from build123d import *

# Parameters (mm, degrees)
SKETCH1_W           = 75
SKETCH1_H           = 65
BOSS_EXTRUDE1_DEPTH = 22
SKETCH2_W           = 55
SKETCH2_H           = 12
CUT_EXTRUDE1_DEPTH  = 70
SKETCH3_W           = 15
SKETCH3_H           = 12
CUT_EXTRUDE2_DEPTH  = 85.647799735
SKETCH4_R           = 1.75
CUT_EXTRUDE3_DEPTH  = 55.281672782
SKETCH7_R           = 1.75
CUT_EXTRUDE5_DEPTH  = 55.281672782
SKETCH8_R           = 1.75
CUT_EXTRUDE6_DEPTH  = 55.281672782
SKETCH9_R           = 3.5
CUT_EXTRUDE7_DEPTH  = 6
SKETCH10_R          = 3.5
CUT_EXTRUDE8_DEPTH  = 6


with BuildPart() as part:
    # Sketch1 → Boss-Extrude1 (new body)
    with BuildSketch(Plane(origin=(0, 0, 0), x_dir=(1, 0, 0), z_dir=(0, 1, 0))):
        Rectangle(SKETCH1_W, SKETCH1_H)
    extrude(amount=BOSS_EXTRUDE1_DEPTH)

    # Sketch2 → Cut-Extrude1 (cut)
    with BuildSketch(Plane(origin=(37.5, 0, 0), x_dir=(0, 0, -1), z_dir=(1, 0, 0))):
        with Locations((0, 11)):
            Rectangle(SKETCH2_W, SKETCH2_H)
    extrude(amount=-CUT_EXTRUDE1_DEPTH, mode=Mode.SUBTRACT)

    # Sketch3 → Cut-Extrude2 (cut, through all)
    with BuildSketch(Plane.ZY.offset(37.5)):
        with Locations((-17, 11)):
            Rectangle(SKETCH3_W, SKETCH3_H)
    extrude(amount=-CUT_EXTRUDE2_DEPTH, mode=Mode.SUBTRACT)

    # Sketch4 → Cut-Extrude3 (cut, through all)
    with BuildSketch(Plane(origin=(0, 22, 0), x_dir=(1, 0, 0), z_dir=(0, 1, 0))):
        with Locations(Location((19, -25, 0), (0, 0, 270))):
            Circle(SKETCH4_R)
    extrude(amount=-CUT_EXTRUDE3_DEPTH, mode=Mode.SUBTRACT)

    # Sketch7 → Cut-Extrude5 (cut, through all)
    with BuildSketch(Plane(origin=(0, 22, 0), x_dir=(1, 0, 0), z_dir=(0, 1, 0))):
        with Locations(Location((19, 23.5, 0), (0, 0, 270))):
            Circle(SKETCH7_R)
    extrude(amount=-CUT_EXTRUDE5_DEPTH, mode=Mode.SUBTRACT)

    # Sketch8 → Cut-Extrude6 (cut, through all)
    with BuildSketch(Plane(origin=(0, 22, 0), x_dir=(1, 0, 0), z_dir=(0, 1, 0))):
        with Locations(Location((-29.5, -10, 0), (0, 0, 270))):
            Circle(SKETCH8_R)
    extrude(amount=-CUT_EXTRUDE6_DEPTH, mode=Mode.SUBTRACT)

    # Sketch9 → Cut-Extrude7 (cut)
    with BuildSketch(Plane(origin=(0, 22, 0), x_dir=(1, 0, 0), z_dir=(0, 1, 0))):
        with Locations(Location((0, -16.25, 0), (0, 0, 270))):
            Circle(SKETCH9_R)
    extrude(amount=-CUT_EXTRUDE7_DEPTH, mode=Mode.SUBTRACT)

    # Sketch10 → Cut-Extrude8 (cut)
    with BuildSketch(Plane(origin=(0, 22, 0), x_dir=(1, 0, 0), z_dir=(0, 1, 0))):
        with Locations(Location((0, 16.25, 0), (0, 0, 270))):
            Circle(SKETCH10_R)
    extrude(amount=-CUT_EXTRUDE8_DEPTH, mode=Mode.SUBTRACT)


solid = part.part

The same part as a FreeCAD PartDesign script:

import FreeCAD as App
import Part
import Sketcher
Q = App.Units.Quantity

doc = App.newDocument("Part")
body = doc.addObject("PartDesign::Body", "Body")

# Sketch on XZ plane
sketch1 = body.newObject("Sketcher::SketchObject", "Sketch")
sketch1.AttachmentSupport = (doc.getObject("XZ_Plane"), [""])
sketch1.MapMode = "FlatFace"
sketch1.addGeometry([
    Part.LineSegment(App.Vector(-38, -32, 0), App.Vector(-38, 32, 0)),
    Part.LineSegment(App.Vector(-38, 32, 0), App.Vector(38, 32, 0)),
    Part.LineSegment(App.Vector(38, 32, 0), App.Vector(38, -32, 0)),
    Part.LineSegment(App.Vector(38, -32, 0), App.Vector(-38, -32, 0)),
], False)
sketch1.addConstraint([
    Sketcher.Constraint("Coincident", 0, 2, 1, 1),
    Sketcher.Constraint("Coincident", 1, 2, 2, 1),
    Sketcher.Constraint("Coincident", 2, 2, 3, 1),
    Sketcher.Constraint("Coincident", 3, 2, 0, 1),
    Sketcher.Constraint("Vertical", 0),
    Sketcher.Constraint("Horizontal", 1),
    Sketcher.Constraint("Vertical", 2),
    Sketcher.Constraint("Horizontal", 3),
    Sketcher.Constraint("Symmetric", 0, 2, 2, 2, -1, 1),
    Sketcher.Constraint("DistanceX", 1, 1, 1, 2, Q("75 mm")),
    Sketcher.Constraint("DistanceY", 0, 1, 0, 2, Q("65 mm")),
])
pad1 = body.newObject("PartDesign::Pad", "Pad")
pad1.Profile = sketch1
pad1.Length = 22
pad1.Reversed = True

# Sketch on YZ plane
sketch2 = body.newObject("Sketcher::SketchObject", "Sketch001")
sketch2.AttachmentSupport = (doc.getObject("YZ_Plane"), [""])
sketch2.MapMode = "FlatFace"
sketch2.AttachmentOffset = App.Placement(App.Vector(0, 0, 37.5), App.Rotation())
sketch2.addGeometry([
    Part.LineSegment(App.Vector(17, 28, 0), App.Vector(5, 28, 0)),
    Part.LineSegment(App.Vector(5, 28, 0), App.Vector(5, -28, 0)),
    Part.LineSegment(App.Vector(5, -28, 0), App.Vector(17, -28, 0)),
    Part.LineSegment(App.Vector(17, -28, 0), App.Vector(17, 28, 0)),
], False)
sketch2.addConstraint([
    Sketcher.Constraint("Coincident", 0, 2, 1, 1),
    Sketcher.Constraint("Coincident", 1, 2, 2, 1),
    Sketcher.Constraint("Coincident", 2, 2, 3, 1),
    Sketcher.Constraint("Coincident", 3, 2, 0, 1),
    Sketcher.Constraint("Horizontal", 0),
    Sketcher.Constraint("Vertical", 1),
    Sketcher.Constraint("Horizontal", 2),
    Sketcher.Constraint("Vertical", 3),
    Sketcher.Constraint("DistanceX", 0, 2, 0, 1, Q("12 mm")),
    Sketcher.Constraint("DistanceY", 1, 2, 1, 1, Q("55 mm")),
    Sketcher.Constraint("DistanceX", -1, 1, 0, 2, Q("5 mm")),
    Sketcher.Constraint("DistanceY", -1, 1, 0, 2, Q("27.5 mm")),
])
pocket1 = body.newObject("PartDesign::Pocket", "Pocket")
pocket1.Profile = sketch2
pocket1.Length = 70

# Sketch on YZ plane
sketch3 = body.newObject("Sketcher::SketchObject", "Sketch002")
sketch3.AttachmentSupport = (doc.getObject("YZ_Plane"), [""])
sketch3.MapMode = "FlatFace"
sketch3.AttachmentOffset = App.Placement(App.Vector(0, 0, -37.5), App.Rotation())
sketch3.addGeometry([
    Part.LineSegment(App.Vector(17, -24, 0), App.Vector(5, -24, 0)),
    Part.LineSegment(App.Vector(5, -24, 0), App.Vector(5, -10, 0)),
    Part.LineSegment(App.Vector(5, -10, 0), App.Vector(17, -10, 0)),
    Part.LineSegment(App.Vector(17, -10, 0), App.Vector(17, -24, 0)),
], False)
sketch3.addConstraint([
    Sketcher.Constraint("Coincident", 0, 2, 1, 1),
    Sketcher.Constraint("Coincident", 1, 2, 2, 1),
    Sketcher.Constraint("Coincident", 2, 2, 3, 1),
    Sketcher.Constraint("Coincident", 3, 2, 0, 1),
    Sketcher.Constraint("Horizontal", 0),
    Sketcher.Constraint("Vertical", 1),
    Sketcher.Constraint("Horizontal", 2),
    Sketcher.Constraint("Vertical", 3),
    Sketcher.Constraint("DistanceX", 0, 2, 0, 1, Q("12 mm")),
    Sketcher.Constraint("DistanceY", 1, 1, 1, 2, Q("15 mm")),
    Sketcher.Constraint("DistanceX", -1, 1, 0, 2, Q("5 mm")),
    Sketcher.Constraint("DistanceY", 0, 2, -1, 1, Q("24.5 mm")),
])
pocket2 = body.newObject("PartDesign::Pocket", "Pocket001")
pocket2.Profile = sketch3
pocket2.Type = "ThroughAll"
pocket2.Reversed = True

# Sketch on XZ plane
sketch4 = body.newObject("Sketcher::SketchObject", "Sketch003")
sketch4.AttachmentSupport = (doc.getObject("XZ_Plane"), [""])
sketch4.MapMode = "FlatFace"
sketch4.AttachmentOffset = App.Placement(App.Vector(0, 0, -22), App.Rotation())
sketch4.addGeometry(Part.Circle(App.Vector(19, 25, 0), App.Vector(0, 0, 1), 1.8), False)
sketch4.addConstraint([
    Sketcher.Constraint("Diameter", 0, Q("3.5 mm")),
    Sketcher.Constraint("DistanceX", -1, 1, 0, 3, Q("19 mm")),
    Sketcher.Constraint("DistanceY", -1, 1, 0, 3, Q("25 mm")),
])
pocket3 = body.newObject("PartDesign::Pocket", "Pocket002")
pocket3.Profile = sketch4
pocket3.Type = "ThroughAll"
pocket3.Reversed = True

# Sketch on XZ plane
sketch5 = body.newObject("Sketcher::SketchObject", "Sketch004")
sketch5.AttachmentSupport = (doc.getObject("XZ_Plane"), [""])
sketch5.MapMode = "FlatFace"
sketch5.AttachmentOffset = App.Placement(App.Vector(0, 0, -22), App.Rotation())
sketch5.addGeometry(Part.Circle(App.Vector(19, -23.5, 0), App.Vector(0, 0, 1), 1.8), False)
sketch5.addConstraint([
    Sketcher.Constraint("Diameter", 0, Q("3.5 mm")),
    Sketcher.Constraint("DistanceX", -1, 1, 0, 3, Q("19 mm")),
    Sketcher.Constraint("DistanceY", 0, 3, -1, 1, Q("23.5 mm")),
])
pocket4 = body.newObject("PartDesign::Pocket", "Pocket003")
pocket4.Profile = sketch5
pocket4.Type = "ThroughAll"
pocket4.Reversed = True

# Sketch on XZ plane
sketch6 = body.newObject("Sketcher::SketchObject", "Sketch005")
sketch6.AttachmentSupport = (doc.getObject("XZ_Plane"), [""])
sketch6.MapMode = "FlatFace"
sketch6.AttachmentOffset = App.Placement(App.Vector(0, 0, -22), App.Rotation())
sketch6.addGeometry(Part.Circle(App.Vector(-29.5, 10, 0), App.Vector(0, 0, 1), 1.8), False)
sketch6.addConstraint([
    Sketcher.Constraint("Diameter", 0, Q("3.5 mm")),
    Sketcher.Constraint("DistanceY", -1, 1, 0, 3, Q("10 mm")),
    Sketcher.Constraint("DistanceX", 0, 3, -1, 1, Q("29.5 mm")),
])
pocket5 = body.newObject("PartDesign::Pocket", "Pocket004")
pocket5.Profile = sketch6
pocket5.Type = "ThroughAll"
pocket5.Reversed = True

# Sketch on XZ plane
sketch7 = body.newObject("Sketcher::SketchObject", "Sketch006")
sketch7.AttachmentSupport = (doc.getObject("XZ_Plane"), [""])
sketch7.MapMode = "FlatFace"
sketch7.AttachmentOffset = App.Placement(App.Vector(0, 0, -22), App.Rotation())
sketch7.addGeometry(Part.Circle(App.Vector(0, 16.2, 0), App.Vector(0, 0, 1), 3.5), False)
sketch7.addConstraint([
    Sketcher.Constraint("PointOnObject", 0, 3, -2),
    Sketcher.Constraint("Diameter", 0, Q("7 mm")),
    Sketcher.Constraint("DistanceY", -1, 1, 0, 3, Q("16.25 mm")),
])
pocket6 = body.newObject("PartDesign::Pocket", "Pocket005")
pocket6.Profile = sketch7
pocket6.Length = 6
pocket6.Reversed = True

# Sketch on XZ plane
sketch8 = body.newObject("Sketcher::SketchObject", "Sketch007")
sketch8.AttachmentSupport = (doc.getObject("XZ_Plane"), [""])
sketch8.MapMode = "FlatFace"
sketch8.AttachmentOffset = App.Placement(App.Vector(0, 0, -22), App.Rotation())
sketch8.addGeometry(Part.Circle(App.Vector(0, -16.2, 0), App.Vector(0, 0, 1), 3.5), False)
sketch8.addConstraint([
    Sketcher.Constraint("PointOnObject", 0, 3, -2),
    Sketcher.Constraint("Diameter", 0, Q("7 mm")),
    Sketcher.Constraint("DistanceY", 0, 3, -1, 1, Q("16.25 mm")),
])
pocket7 = body.newObject("PartDesign::Pocket", "Pocket006")
pocket7.Profile = sketch8
pocket7.Length = 6
pocket7.Reversed = True

doc.recompute()
